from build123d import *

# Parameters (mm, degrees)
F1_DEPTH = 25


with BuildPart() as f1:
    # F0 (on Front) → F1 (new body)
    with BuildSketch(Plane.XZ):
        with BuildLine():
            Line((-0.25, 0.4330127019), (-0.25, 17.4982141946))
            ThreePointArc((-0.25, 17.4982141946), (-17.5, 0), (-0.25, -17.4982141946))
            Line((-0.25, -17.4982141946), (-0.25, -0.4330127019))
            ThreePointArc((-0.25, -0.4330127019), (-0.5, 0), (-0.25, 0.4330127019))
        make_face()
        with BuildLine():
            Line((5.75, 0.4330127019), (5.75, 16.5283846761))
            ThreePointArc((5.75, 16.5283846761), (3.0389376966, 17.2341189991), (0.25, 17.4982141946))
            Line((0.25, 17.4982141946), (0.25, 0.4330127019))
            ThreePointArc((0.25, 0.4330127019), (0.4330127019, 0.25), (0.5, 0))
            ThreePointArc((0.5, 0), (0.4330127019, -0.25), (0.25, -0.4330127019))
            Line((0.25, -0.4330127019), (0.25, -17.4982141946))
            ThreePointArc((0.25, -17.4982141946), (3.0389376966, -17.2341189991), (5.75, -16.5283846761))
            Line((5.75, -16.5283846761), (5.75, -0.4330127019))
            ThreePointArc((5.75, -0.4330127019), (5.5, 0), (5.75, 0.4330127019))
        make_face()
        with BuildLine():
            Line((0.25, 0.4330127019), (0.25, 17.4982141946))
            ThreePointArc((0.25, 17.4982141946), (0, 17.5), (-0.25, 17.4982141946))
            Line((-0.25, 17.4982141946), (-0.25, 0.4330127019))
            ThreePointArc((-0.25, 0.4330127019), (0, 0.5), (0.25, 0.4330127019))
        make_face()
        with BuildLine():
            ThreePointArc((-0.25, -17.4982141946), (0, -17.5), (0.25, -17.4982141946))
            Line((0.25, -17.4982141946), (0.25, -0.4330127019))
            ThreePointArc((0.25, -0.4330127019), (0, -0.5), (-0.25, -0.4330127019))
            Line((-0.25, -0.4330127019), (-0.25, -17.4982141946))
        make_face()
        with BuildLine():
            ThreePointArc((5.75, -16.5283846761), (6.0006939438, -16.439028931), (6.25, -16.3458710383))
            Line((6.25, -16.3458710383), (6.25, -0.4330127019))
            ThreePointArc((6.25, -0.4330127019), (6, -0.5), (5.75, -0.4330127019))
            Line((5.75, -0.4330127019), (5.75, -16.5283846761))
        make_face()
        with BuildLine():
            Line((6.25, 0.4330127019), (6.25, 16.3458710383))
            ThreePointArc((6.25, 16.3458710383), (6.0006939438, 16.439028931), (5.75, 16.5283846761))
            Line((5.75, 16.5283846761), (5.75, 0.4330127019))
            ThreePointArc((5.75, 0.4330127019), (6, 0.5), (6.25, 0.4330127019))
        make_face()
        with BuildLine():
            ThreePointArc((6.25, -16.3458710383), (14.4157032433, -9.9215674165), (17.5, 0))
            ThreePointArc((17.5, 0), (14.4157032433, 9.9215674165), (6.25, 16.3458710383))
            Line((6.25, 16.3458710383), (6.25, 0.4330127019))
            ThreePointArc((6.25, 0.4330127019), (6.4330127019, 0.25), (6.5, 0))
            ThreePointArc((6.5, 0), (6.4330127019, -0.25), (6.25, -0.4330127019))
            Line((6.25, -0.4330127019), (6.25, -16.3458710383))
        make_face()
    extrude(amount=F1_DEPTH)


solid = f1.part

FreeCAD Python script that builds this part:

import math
import FreeCAD as App
import Part
import Sketcher

V = App.Vector
Q = App.Units.Quantity

doc = App.newDocument("Part")
body = doc.addObject("PartDesign::Body", "Body")

# Sketch on XZ plane
sketch1 = body.newObject("Sketcher::SketchObject", "Sketch")
sketch1.AttachmentSupport = (doc.getObject("XZ_Plane"), [""])
sketch1.MapMode = "FlatFace"
sketch1.addGeometry(Part.ArcOfCircle(Part.Circle(V(0, 0, 0), V(0, 0, 1), 17.5), math.radians(91), math.radians(269)), False)
sketch1.addGeometry(Part.ArcOfCircle(Part.Circle(V(0, 0, 0), V(0, 0, 1), 17.5), math.radians(-90.82), math.radians(-89.18)), False)
sketch1.addGeometry(Part.ArcOfCircle(Part.Circle(V(0, 0, 0), V(0, 0, 1), 17.5), math.radians(-89.18), math.radians(-70.82)), False)
sketch1.addGeometry(Part.ArcOfCircle(Part.Circle(V(0, 0, 0), V(0, 0, 1), 17.5), math.radians(-70.82), math.radians(-69.08)), False)
sketch1.addGeometry(Part.ArcOfCircle(Part.Circle(V(0, 0, 0), V(0, 0, 1), 17.5), math.radians(-69), math.radians(0)), False)
sketch1.addGeometry(Part.ArcOfCircle(Part.Circle(V(0, 0, 0), V(0, 0, 1), 17.5), math.radians(0), math.radians(69)), False)
sketch1.addGeometry(Part.ArcOfCircle(Part.Circle(V(0, 0, 0), V(0, 0, 1), 17.5), math.radians(69.08), math.radians(70.82)), False)
sketch1.addGeometry(Part.ArcOfCircle(Part.Circle(V(0, 0, 0), V(0, 0, 1), 17.5), math.radians(70.82), math.radians(89.18)), False)
sketch1.addGeometry(Part.ArcOfCircle(Part.Circle(V(0, 0, 0), V(0, 0, 1), 17.5), math.radians(89.18), math.radians(90.82)), False)
sketch1.addGeometry(Part.ArcOfCircle(Part.Circle(V(6, 0, 0), V(0, 0, 1), 0.5), math.radians(-120), math.radians(-60)), False)
sketch1.addGeometry(Part.ArcOfCircle(Part.Circle(V(6, 0, 0), V(0, 0, 1), 0.5), math.radians(120), math.radians(240)), False)
sketch1.addGeometry(Part.ArcOfCircle(Part.Circle(V(6, 0, 0), V(0, 0, 1), 0.5), math.radians(60), math.radians(120)), False)
sketch1.addGeometry(Part.ArcOfCircle(Part.Circle(V(6, 0, 0), V(0, 0, 1), 0.5), math.radians(0), math.radians(60)), False)
sketch1.addGeometry(Part.ArcOfCircle(Part.Circle(V(6, 0, 0), V(0, 0, 1), 0.5), math.radians(-60), math.radians(0)), False)
sketch1.addGeometry(Part.ArcOfCircle(Part.Circle(V(0, 0, 0), V(0, 0, 1), 0.5), math.radians(120), math.radians(240)), False)
sketch1.addGeometry(Part.ArcOfCircle(Part.Circle(V(0, 0, 0), V(0, 0, 1), 0.5), math.radians(60), math.radians(120)), False)
sketch1.addGeometry(Part.ArcOfCircle(Part.Circle(V(0, 0, 0), V(0, 0, 1), 0.5), math.radians(0), math.radians(60)), False)
sketch1.addGeometry(Part.ArcOfCircle(Part.Circle(V(0, 0, 0), V(0, 0, 1), 0.5), math.radians(-60), math.radians(0)), False)
sketch1.addGeometry(Part.ArcOfCircle(Part.Circle(V(0, 0, 0), V(0, 0, 1), 0.5), math.radians(-120), math.radians(-60)), False)
sketch1.addConstraint(Sketcher.Constraint("Tangent", 0, 2, 1, 1))
sketch1.addConstraint(Sketcher.Constraint("Tangent", 1, 2, 2, 1))
sketch1.addConstraint(Sketcher.Constraint("Tangent", 2, 2, 3, 1))
sketch1.addConstraint(Sketcher.Constraint("Tangent", 3, 2, 4, 1))
sketch1.addConstraint(Sketcher.Constraint("Tangent", 4, 2, 5, 1))
sketch1.addConstraint(Sketcher.Constraint("Tangent", 5, 2, 6, 1))
sketch1.addConstraint(Sketcher.Constraint("Tangent", 6, 2, 7, 1))
sketch1.addConstraint(Sketcher.Constraint("Tangent", 7, 2, 8, 1))
sketch1.addConstraint(Sketcher.Constraint("Tangent", 8, 2, 0, 1))
sketch1.addConstraint(Sketcher.Constraint("Tangent", 9, 1, 10, 2))
sketch1.addConstraint(Sketcher.Constraint("Tangent", 10, 1, 11, 2))
sketch1.addConstraint(Sketcher.Constraint("Tangent", 11, 1, 12, 2))
sketch1.addConstraint(Sketcher.Constraint("Tangent", 12, 1, 13, 2))
sketch1.addConstraint(Sketcher.Constraint("Tangent", 13, 1, 9, 2))
sketch1.addConstraint(Sketcher.Constraint("Tangent", 14, 1, 15, 2))
sketch1.addConstraint(Sketcher.Constraint("Tangent", 15, 1, 16, 2))
sketch1.addConstraint(Sketcher.Constraint("Tangent", 16, 1, 17, 2))
sketch1.addConstraint(Sketcher.Constraint("Tangent", 17, 1, 18, 2))
sketch1.addConstraint(Sketcher.Constraint("Tangent", 18, 1, 14, 2))
sketch1.addConstraint(Sketcher.Constraint("Coincident", 0, 3, -1, 1))
sketch1.addConstraint(Sketcher.Constraint("Coincident", 2, 3, -1, 1))
sketch1.addConstraint(Sketcher.Constraint("Coincident", 4, 3, -1, 1))
sketch1.addConstraint(Sketcher.Constraint("Coincident", 6, 3, -1, 1))
sketch1.addConstraint(Sketcher.Constraint("Coincident", 14, 3, -1, 1))
sketch1.addConstraint(Sketcher.Constraint("Coincident", 16, 3, -1, 1))
sketch1.addConstraint(Sketcher.Constraint("Coincident", 11, 3, 9, 3))
sketch1.addConstraint(Sketcher.Constraint("Equal", 13, 14))
sketch1.addConstraint(Sketcher.Constraint("Symmetric", 9, 1, 10, 1, -1))
sketch1.addConstraint(Sketcher.Constraint("PointOnObject", 4, 2, -1))
sketch1.addConstraint(Sketcher.Constraint("PointOnObject", 12, 1, -1))
sketch1.addConstraint(Sketcher.Constraint("PointOnObject", 16, 1, -1))
sketch1.addConstraint(Sketcher.Constraint("Horizontal", 0, 2, 1, 2))
sketch1.addConstraint(Sketcher.Constraint("Horizontal", 7, 2, 8, 2))
sketch1.addConstraint(Sketcher.Constraint("Horizontal", 10, 1, 11, 1))
sketch1.addConstraint(Sketcher.Constraint("Horizontal", 9, 1, 13, 1))
sketch1.addConstraint(Sketcher.Constraint("Horizontal", 11, 1, 14, 1))
sketch1.addConstraint(Sketcher.Constraint("Horizontal", 14, 1, 15, 1))
sketch1.addConstraint(Sketcher.Constraint("Horizontal", 13, 1, 17, 1))
sketch1.addConstraint(Sketcher.Constraint("Horizontal", 17, 1, 18, 1))
sketch1.addConstraint(Sketcher.Constraint("Vertical", 3, 2, 5, 2))
sketch1.addConstraint(Sketcher.Constraint("Vertical", 2, 2, 6, 2))
sketch1.addConstraint(Sketcher.Constraint("Vertical", 1, 2, 7, 2))
sketch1.addConstraint(Sketcher.Constraint("Vertical", 6, 2, 9, 1))
sketch1.addConstraint(Sketcher.Constraint("Vertical", 5, 2, 11, 1))
sketch1.addConstraint(Sketcher.Constraint("Vertical", 8, 2, 14, 1))
sketch1.addConstraint(Sketcher.Constraint("Radius", 0, Q("17.5 mm")))
sketch1.addConstraint(Sketcher.Constraint("Radius", 9, Q("0.5 mm")))
sketch1.addConstraint(Sketcher.Constraint("DistanceX", -1, 1, 9, 3, Q("6 mm")))
sketch1.addConstraint(Sketcher.Constraint("DistanceX", 0, 2, 1, 2, Q("0.5 mm")))
pad1 = body.newObject("PartDesign::Pad", "Pad")
pad1.Profile = sketch1
pad1.Length = 25

doc.recompute()
